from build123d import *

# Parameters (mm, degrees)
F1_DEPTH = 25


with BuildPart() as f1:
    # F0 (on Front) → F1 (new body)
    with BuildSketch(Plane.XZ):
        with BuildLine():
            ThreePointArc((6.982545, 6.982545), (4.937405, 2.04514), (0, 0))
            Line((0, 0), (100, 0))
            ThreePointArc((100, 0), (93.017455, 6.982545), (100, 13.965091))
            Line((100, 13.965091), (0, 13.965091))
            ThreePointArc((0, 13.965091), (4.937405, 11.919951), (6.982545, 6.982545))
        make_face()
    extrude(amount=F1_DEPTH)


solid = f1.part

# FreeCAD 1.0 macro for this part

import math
import FreeCAD as App
import Part
import Sketcher

V = App.Vector
Q = App.Units.Quantity

doc = App.newDocument("Part")
body = doc.addObject("PartDesign::Body", "Body")

sketch1 = doc.addObject("Sketcher::SketchObject", "Sketch")
body.addObject(sketch1)
sketch1.AttachmentSupport = (doc.XZ_Plane, [""])
sketch1.MapMode = "FlatFace"
sketch1.addGeometry(Part.ArcOfCircle(Part.Circle(V(0, 6.982545, 0), V(0, 0, 1), 6.982545), math.radians(-90.000002), math.radians(0.000002)), False)
sketch1.addGeometry(Part.LineSegment(V(0, 0, 0), V(100, 0, 0)), False)
sketch1.addGeometry(Part.ArcOfCircle(Part.Circle(V(100, 6.982545, 0), V(0, 0, 1), 6.982545), math.radians(90.000004), math.radians(269.999996)), False)
sketch1.addGeometry(Part.LineSegment(V(100, 13.965091, 0), V(0, 13.965091, 0)), False)
sketch1.addGeometry(Part.ArcOfCircle(Part.Circle(V(0, 6.982546, 0), V(0, 0, 1), 6.982545), math.radians(-0.00001), math.radians(90.000002)), False)
sketch1.addConstraint(Sketcher.Constraint("Tangent", 0, 1, 1, 1))
sketch1.addConstraint(Sketcher.Constraint("Tangent", 1, 2, 2, 2))
sketch1.addConstraint(Sketcher.Constraint("Tangent", 2, 1, 3, 1))
sketch1.addConstraint(Sketcher.Constraint("Tangent", 3, 2, 4, 2))
sketch1.addConstraint(Sketcher.Constraint("Tangent", 4, 1, 0, 2))
sketch1.addConstraint(Sketcher.Constraint("Horizontal", 1))
sketch1.addConstraint(Sketcher.Constraint("Horizontal", 3))
sketch1.addConstraint(Sketcher.Constraint("Coincident", 0, 1, -1, 1))
sketch1.addConstraint(Sketcher.Constraint("Equal", 0, 2))
sketch1.addConstraint(Sketcher.Constraint("Horizontal", 2, 3, 4, 1))
sketch1.addConstraint(Sketcher.Constraint("DistanceX", 1, 1, 1, 2, Q("100 mm")))
sketch1.addConstraint(Sketcher.Constraint("Radius", 0, Q("6.982545 mm")))
pad1 = doc.addObject("PartDesign::Pad", "Pad")
body.addObject(pad1)
pad1.Profile = sketch1
pad1.Length = 25

doc.recompute()
